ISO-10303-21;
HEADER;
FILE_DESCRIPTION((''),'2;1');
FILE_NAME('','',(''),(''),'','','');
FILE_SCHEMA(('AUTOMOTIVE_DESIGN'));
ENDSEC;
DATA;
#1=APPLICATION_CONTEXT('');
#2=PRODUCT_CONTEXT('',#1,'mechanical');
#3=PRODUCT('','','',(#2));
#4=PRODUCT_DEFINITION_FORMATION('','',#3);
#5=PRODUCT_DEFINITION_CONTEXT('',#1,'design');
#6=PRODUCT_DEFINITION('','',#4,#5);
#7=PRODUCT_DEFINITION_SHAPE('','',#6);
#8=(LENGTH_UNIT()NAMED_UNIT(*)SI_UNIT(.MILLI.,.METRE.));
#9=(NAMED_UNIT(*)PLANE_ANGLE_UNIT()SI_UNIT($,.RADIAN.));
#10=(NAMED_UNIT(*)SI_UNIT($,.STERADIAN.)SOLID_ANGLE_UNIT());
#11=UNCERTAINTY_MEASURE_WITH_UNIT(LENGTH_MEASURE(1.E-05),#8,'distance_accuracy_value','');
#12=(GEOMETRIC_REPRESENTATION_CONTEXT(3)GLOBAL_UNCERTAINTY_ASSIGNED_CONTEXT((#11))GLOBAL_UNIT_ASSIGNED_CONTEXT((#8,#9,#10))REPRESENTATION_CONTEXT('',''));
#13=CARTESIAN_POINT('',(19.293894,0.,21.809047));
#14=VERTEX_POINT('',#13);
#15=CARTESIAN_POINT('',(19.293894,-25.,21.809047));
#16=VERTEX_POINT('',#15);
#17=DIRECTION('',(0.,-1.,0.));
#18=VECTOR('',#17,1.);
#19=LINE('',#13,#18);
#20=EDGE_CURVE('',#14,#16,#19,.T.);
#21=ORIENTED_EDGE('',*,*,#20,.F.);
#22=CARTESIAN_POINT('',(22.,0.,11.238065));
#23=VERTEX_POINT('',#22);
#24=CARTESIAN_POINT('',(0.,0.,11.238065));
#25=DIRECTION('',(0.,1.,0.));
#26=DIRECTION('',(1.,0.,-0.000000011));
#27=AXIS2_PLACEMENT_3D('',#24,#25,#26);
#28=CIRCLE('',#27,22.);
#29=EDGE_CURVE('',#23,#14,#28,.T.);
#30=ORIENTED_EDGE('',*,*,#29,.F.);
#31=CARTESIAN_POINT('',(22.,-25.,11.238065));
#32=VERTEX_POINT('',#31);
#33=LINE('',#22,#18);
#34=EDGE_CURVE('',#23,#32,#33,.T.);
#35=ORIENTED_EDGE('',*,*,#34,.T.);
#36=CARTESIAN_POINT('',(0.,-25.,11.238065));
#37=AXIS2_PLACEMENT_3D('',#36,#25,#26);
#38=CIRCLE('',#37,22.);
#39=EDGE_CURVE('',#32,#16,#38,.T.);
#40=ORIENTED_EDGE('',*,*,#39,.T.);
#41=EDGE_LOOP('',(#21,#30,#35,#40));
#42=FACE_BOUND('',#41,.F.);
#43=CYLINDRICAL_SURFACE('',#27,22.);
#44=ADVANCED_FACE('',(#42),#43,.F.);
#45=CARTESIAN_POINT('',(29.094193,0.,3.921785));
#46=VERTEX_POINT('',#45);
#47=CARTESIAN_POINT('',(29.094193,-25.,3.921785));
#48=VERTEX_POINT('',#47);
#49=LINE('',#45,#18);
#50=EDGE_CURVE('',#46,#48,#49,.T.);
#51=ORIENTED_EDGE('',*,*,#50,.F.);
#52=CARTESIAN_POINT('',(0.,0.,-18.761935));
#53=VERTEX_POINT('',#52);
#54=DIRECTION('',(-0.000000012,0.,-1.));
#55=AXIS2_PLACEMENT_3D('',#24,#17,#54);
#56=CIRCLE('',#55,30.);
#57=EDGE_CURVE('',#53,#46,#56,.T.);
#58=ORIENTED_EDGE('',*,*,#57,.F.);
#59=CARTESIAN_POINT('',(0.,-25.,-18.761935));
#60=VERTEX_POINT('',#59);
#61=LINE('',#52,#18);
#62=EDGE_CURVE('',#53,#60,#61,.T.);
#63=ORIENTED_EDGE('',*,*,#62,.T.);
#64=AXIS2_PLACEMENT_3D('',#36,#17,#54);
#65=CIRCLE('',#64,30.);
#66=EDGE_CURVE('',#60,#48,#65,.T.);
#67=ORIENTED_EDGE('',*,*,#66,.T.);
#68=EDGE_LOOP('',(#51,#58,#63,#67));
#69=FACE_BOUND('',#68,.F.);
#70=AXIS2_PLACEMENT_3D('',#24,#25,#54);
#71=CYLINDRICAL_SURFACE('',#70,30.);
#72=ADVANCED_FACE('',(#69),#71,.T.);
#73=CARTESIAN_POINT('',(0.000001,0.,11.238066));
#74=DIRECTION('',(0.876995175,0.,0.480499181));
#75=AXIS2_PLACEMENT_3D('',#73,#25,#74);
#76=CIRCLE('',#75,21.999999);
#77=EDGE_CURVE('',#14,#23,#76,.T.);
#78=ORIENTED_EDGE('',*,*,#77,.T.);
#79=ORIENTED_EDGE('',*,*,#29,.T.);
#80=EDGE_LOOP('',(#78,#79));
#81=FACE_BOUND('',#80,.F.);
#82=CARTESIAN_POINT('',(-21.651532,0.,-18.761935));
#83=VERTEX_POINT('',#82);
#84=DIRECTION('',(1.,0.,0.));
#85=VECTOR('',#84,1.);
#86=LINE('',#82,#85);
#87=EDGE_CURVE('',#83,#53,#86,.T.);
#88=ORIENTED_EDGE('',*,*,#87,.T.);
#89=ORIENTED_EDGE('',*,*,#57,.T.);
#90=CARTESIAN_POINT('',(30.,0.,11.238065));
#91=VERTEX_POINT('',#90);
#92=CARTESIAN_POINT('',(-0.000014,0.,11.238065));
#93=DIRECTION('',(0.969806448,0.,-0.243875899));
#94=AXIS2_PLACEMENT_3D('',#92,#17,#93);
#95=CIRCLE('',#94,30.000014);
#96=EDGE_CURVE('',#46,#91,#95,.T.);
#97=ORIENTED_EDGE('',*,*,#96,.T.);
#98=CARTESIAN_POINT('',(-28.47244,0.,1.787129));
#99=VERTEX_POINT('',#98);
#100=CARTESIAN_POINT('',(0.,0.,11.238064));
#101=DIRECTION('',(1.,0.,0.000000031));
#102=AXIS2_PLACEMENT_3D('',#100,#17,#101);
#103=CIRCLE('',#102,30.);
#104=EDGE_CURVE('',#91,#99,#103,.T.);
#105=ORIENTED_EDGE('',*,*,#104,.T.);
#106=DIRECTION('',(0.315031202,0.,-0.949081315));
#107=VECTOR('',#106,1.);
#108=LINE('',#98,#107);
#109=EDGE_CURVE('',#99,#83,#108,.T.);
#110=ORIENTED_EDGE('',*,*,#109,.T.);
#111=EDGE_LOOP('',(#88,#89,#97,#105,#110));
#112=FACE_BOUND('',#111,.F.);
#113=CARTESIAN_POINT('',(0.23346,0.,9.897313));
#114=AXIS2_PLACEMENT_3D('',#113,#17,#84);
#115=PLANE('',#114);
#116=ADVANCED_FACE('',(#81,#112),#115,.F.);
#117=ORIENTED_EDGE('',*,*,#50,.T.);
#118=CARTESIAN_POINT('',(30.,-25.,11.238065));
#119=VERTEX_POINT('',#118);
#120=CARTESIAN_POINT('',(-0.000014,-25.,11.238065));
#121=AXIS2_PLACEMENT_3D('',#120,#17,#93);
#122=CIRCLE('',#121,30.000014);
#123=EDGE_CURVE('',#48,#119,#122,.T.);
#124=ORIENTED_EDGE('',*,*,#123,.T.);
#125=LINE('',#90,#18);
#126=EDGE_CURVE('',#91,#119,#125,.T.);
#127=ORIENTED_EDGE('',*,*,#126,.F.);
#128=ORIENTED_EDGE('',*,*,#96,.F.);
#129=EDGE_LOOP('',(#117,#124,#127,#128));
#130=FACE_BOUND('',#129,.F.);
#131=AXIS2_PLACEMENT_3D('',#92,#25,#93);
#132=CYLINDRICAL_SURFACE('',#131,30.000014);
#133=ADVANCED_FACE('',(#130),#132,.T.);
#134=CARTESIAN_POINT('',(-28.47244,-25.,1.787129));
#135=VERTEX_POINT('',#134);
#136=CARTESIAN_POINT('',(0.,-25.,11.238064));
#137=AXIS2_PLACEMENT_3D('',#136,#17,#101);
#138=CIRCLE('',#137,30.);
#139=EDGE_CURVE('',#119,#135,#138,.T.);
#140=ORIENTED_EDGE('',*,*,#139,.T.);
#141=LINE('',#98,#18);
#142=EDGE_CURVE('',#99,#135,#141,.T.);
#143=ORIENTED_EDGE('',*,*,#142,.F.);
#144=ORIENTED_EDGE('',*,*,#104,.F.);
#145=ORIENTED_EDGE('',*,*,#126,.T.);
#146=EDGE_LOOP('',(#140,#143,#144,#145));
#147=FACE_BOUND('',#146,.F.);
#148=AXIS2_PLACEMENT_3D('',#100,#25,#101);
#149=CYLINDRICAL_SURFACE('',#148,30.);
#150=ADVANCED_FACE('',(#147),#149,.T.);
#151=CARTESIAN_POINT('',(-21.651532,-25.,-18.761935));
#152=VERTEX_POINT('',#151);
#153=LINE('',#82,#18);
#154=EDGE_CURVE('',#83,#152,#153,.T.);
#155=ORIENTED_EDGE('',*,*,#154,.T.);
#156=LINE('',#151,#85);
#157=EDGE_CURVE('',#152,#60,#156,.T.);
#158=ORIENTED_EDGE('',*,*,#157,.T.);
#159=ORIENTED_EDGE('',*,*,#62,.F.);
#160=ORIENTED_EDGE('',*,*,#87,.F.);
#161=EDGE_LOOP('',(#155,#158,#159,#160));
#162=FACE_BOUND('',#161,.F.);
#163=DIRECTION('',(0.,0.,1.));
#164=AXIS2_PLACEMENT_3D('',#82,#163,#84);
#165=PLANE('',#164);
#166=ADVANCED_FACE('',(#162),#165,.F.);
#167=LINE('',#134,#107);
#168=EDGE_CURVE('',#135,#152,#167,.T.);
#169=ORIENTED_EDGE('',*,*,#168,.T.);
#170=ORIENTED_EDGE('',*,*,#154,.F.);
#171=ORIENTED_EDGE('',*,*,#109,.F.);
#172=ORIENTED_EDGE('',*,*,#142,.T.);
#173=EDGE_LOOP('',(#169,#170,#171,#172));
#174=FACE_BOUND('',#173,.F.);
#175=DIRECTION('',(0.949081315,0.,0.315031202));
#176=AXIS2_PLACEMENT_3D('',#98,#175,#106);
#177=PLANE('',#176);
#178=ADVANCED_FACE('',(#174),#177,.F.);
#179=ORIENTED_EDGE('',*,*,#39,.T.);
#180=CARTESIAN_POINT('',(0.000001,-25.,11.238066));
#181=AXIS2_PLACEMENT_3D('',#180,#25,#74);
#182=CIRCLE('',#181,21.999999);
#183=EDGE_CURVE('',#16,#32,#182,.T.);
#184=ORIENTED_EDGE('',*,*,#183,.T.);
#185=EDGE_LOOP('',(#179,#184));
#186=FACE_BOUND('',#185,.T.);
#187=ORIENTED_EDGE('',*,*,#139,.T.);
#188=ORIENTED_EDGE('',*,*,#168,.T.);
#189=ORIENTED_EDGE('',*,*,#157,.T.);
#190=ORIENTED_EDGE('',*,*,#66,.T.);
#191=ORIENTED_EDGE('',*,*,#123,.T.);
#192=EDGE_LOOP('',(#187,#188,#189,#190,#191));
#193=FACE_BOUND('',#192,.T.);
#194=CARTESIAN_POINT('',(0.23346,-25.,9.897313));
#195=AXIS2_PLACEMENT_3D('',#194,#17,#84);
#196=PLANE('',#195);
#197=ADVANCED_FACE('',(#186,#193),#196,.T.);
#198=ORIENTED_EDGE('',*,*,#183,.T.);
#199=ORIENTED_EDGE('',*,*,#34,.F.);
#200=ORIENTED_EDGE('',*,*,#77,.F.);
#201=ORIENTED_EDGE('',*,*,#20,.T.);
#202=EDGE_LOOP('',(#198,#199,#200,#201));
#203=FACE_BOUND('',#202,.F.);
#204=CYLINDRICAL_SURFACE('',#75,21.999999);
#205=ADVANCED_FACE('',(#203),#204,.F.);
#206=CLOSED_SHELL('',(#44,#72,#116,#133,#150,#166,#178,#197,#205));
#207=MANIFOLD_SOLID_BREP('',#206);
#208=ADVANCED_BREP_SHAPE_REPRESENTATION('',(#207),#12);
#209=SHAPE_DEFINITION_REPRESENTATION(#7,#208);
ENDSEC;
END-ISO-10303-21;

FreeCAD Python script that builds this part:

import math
import FreeCAD as App
import Part
import Sketcher
from FreeCAD import Vector
Q = App.Units.Quantity

doc = App.newDocument("Part")
params = doc.addObject("Spreadsheet::Sheet", "Params")
for row, (alias, value) in enumerate([
    ("sketch1_radius", "30 mm"),
    ("sketch1_radius2", "21.999999 mm"),
    ("pad1_length", "25 mm"),
], start=1):
    params.set(f"A{row}", alias)
    params.set(f"B{row}", "=" + value)
    params.setAlias(f"B{row}", alias)

body = doc.addObject("PartDesign::Body", "Body")

sketch1 = body.newObject("Sketcher::SketchObject", "Sketch")
sketch1.AttachmentSupport = (doc.getObject("XZ_Plane"), [""])
sketch1.MapMode = "FlatFace"
sketch1.addGeometry([
    Part.ArcOfCircle(Part.Circle(Vector(0, 11, 0), Vector(0, 0, 1), 30), math.radians(-14.12), math.radians(0)),
    Part.ArcOfCircle(Part.Circle(Vector(0, 11, 0), Vector(0, 0, 1), 30), math.radians(0), math.radians(198)),
    Part.LineSegment(Vector(-28, 2, 0), Vector(-22, -19, 0)),
    Part.LineSegment(Vector(-22, -19, 0), Vector(0, -19, 0)),
    Part.ArcOfCircle(Part.Circle(Vector(0, 11, 0), Vector(0, 0, 1), 30), math.radians(-90), math.radians(-14)),
    Part.ArcOfCircle(Part.Circle(Vector(0, 11, 0), Vector(0, 0, 1), 22), math.radians(0), math.radians(29)),
    Part.ArcOfCircle(Part.Circle(Vector(0, 11, 0), Vector(0, 0, 1), 22), math.radians(29), math.radians(360)),
], False)
sketch1.addConstraint([
    Sketcher.Constraint("Tangent", 0, 2, 1, 1),
    Sketcher.Constraint("Tangent", 1, 2, 2, 1),
    Sketcher.Constraint("Coincident", 2, 2, 3, 1),
    Sketcher.Constraint("Tangent", 3, 2, 4, 1),
    Sketcher.Constraint("Tangent", 4, 2, 0, 1),
    Sketcher.Constraint("Tangent", 5, 1, 6, 2),
    Sketcher.Constraint("Coincident", 6, 1, 5, 2),
    Sketcher.Constraint("Horizontal", 3),
    Sketcher.Constraint("Coincident", 4, 3, 1, 3),
    Sketcher.Constraint("Coincident", 5, 3, 1, 3),
    Sketcher.Constraint("PointOnObject", 1, 3, -2),
    Sketcher.Constraint("Horizontal", 6, 3, 0, 2),
    Sketcher.Constraint("Horizontal", 0, 2, 5, 1),
    Sketcher.Constraint("Radius", 1, Q("30 mm")),
    Sketcher.Constraint("Radius", 5, Q("21.999999 mm")),
    Sketcher.Constraint("DistanceX", 3, 1, 3, 2, Q("21.651532 mm")),
    Sketcher.Constraint("DistanceX", 6, 1, 4, 2, Q("9.800299 mm")),
    Sketcher.Constraint("DistanceY", -1, 1, 1, 2, Q("1.787129 mm")),
    Sketcher.Constraint("DistanceY", 4, 2, 0, 2, Q("7.31628 mm")),
])
sketch1.setExpression("Constraints[13]", "Params.sketch1_radius")
sketch1.setExpression("Constraints[14]", "Params.sketch1_radius2")
pad1 = body.newObject("PartDesign::Pad", "Pad")
pad1.Profile = sketch1
pad1.setExpression("Length", "Params.pad1_length")

doc.recompute()
